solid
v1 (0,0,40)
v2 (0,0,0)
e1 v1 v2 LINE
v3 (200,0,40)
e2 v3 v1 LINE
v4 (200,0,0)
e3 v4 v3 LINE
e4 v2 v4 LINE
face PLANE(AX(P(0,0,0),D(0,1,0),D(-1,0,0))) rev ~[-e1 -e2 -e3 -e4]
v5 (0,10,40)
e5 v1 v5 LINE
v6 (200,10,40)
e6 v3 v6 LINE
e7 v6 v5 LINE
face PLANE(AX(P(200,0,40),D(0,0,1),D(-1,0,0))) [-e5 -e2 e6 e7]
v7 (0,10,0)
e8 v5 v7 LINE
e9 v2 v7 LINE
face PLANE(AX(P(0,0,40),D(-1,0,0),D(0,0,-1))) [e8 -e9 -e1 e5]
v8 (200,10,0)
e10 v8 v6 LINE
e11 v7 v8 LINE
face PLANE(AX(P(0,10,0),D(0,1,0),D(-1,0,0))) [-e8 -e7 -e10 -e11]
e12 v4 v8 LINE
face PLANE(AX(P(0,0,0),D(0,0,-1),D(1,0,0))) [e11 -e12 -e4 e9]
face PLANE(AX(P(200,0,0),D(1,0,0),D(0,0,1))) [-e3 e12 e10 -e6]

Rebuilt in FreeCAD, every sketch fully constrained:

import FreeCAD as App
import Part
import Sketcher

doc = App.newDocument("Part")
params = doc.addObject("Spreadsheet::Sheet", "Params")
for row, (alias, value) in enumerate([
    ("sketch1_width", "200 mm"),
    ("sketch1_height", "40 mm"),
    ("pad1_length", "10 mm"),
], start=1):
    params.set(f"A{row}", alias)
    params.set(f"B{row}", "=" + value)
    params.setAlias(f"B{row}", alias)

body = doc.addObject("PartDesign::Body", "Body")

# Sketch on XZ plane
sketch1 = body.newObject("Sketcher::SketchObject", "Sketch")
sketch1.AttachmentSupport = (doc.getObject("XZ_Plane"), [""])
sketch1.MapMode = "FlatFace"
sketch1.addGeometry(Part.LineSegment(App.Vector(200, 0, 0), App.Vector(0, 0, 0)), False)
sketch1.addGeometry(Part.LineSegment(App.Vector(0, 0, 0), App.Vector(0, 40, 0)), False)
sketch1.addGeometry(Part.LineSegment(App.Vector(0, 40, 0), App.Vector(200, 40, 0)), False)
sketch1.addGeometry(Part.LineSegment(App.Vector(200, 40, 0), App.Vector(200, 0, 0)), False)
sketch1.addConstraint(Sketcher.Constraint("Coincident", 0, 2, 1, 1))
sketch1.addConstraint(Sketcher.Constraint("Coincident", 1, 2, 2, 1))
sketch1.addConstraint(Sketcher.Constraint("Coincident", 2, 2, 3, 1))
sketch1.addConstraint(Sketcher.Constraint("Coincident", 3, 2, 0, 1))
sketch1.addConstraint(Sketcher.Constraint("Horizontal", 0))
sketch1.addConstraint(Sketcher.Constraint("Vertical", 1))
sketch1.addConstraint(Sketcher.Constraint("Horizontal", 2))
sketch1.addConstraint(Sketcher.Constraint("Vertical", 3))
sketch1.addConstraint(Sketcher.Constraint("Coincident", 0, 2, -1, 1))
sketch1.addConstraint(Sketcher.Constraint("DistanceX", 0, 2, 0, 1, 200.0))
sketch1.addConstraint(Sketcher.Constraint("DistanceY", 1, 1, 1, 2, 40.0))
sketch1.setExpression("Constraints[9]", "Params.sketch1_width")
sketch1.setExpression("Constraints[10]", "Params.sketch1_height")
pad1 = body.newObject("PartDesign::Pad", "Pad")
pad1.Profile = sketch1
pad1.setExpression("Length", "Params.pad1_length")
pad1.Reversed = True

doc.recompute()
